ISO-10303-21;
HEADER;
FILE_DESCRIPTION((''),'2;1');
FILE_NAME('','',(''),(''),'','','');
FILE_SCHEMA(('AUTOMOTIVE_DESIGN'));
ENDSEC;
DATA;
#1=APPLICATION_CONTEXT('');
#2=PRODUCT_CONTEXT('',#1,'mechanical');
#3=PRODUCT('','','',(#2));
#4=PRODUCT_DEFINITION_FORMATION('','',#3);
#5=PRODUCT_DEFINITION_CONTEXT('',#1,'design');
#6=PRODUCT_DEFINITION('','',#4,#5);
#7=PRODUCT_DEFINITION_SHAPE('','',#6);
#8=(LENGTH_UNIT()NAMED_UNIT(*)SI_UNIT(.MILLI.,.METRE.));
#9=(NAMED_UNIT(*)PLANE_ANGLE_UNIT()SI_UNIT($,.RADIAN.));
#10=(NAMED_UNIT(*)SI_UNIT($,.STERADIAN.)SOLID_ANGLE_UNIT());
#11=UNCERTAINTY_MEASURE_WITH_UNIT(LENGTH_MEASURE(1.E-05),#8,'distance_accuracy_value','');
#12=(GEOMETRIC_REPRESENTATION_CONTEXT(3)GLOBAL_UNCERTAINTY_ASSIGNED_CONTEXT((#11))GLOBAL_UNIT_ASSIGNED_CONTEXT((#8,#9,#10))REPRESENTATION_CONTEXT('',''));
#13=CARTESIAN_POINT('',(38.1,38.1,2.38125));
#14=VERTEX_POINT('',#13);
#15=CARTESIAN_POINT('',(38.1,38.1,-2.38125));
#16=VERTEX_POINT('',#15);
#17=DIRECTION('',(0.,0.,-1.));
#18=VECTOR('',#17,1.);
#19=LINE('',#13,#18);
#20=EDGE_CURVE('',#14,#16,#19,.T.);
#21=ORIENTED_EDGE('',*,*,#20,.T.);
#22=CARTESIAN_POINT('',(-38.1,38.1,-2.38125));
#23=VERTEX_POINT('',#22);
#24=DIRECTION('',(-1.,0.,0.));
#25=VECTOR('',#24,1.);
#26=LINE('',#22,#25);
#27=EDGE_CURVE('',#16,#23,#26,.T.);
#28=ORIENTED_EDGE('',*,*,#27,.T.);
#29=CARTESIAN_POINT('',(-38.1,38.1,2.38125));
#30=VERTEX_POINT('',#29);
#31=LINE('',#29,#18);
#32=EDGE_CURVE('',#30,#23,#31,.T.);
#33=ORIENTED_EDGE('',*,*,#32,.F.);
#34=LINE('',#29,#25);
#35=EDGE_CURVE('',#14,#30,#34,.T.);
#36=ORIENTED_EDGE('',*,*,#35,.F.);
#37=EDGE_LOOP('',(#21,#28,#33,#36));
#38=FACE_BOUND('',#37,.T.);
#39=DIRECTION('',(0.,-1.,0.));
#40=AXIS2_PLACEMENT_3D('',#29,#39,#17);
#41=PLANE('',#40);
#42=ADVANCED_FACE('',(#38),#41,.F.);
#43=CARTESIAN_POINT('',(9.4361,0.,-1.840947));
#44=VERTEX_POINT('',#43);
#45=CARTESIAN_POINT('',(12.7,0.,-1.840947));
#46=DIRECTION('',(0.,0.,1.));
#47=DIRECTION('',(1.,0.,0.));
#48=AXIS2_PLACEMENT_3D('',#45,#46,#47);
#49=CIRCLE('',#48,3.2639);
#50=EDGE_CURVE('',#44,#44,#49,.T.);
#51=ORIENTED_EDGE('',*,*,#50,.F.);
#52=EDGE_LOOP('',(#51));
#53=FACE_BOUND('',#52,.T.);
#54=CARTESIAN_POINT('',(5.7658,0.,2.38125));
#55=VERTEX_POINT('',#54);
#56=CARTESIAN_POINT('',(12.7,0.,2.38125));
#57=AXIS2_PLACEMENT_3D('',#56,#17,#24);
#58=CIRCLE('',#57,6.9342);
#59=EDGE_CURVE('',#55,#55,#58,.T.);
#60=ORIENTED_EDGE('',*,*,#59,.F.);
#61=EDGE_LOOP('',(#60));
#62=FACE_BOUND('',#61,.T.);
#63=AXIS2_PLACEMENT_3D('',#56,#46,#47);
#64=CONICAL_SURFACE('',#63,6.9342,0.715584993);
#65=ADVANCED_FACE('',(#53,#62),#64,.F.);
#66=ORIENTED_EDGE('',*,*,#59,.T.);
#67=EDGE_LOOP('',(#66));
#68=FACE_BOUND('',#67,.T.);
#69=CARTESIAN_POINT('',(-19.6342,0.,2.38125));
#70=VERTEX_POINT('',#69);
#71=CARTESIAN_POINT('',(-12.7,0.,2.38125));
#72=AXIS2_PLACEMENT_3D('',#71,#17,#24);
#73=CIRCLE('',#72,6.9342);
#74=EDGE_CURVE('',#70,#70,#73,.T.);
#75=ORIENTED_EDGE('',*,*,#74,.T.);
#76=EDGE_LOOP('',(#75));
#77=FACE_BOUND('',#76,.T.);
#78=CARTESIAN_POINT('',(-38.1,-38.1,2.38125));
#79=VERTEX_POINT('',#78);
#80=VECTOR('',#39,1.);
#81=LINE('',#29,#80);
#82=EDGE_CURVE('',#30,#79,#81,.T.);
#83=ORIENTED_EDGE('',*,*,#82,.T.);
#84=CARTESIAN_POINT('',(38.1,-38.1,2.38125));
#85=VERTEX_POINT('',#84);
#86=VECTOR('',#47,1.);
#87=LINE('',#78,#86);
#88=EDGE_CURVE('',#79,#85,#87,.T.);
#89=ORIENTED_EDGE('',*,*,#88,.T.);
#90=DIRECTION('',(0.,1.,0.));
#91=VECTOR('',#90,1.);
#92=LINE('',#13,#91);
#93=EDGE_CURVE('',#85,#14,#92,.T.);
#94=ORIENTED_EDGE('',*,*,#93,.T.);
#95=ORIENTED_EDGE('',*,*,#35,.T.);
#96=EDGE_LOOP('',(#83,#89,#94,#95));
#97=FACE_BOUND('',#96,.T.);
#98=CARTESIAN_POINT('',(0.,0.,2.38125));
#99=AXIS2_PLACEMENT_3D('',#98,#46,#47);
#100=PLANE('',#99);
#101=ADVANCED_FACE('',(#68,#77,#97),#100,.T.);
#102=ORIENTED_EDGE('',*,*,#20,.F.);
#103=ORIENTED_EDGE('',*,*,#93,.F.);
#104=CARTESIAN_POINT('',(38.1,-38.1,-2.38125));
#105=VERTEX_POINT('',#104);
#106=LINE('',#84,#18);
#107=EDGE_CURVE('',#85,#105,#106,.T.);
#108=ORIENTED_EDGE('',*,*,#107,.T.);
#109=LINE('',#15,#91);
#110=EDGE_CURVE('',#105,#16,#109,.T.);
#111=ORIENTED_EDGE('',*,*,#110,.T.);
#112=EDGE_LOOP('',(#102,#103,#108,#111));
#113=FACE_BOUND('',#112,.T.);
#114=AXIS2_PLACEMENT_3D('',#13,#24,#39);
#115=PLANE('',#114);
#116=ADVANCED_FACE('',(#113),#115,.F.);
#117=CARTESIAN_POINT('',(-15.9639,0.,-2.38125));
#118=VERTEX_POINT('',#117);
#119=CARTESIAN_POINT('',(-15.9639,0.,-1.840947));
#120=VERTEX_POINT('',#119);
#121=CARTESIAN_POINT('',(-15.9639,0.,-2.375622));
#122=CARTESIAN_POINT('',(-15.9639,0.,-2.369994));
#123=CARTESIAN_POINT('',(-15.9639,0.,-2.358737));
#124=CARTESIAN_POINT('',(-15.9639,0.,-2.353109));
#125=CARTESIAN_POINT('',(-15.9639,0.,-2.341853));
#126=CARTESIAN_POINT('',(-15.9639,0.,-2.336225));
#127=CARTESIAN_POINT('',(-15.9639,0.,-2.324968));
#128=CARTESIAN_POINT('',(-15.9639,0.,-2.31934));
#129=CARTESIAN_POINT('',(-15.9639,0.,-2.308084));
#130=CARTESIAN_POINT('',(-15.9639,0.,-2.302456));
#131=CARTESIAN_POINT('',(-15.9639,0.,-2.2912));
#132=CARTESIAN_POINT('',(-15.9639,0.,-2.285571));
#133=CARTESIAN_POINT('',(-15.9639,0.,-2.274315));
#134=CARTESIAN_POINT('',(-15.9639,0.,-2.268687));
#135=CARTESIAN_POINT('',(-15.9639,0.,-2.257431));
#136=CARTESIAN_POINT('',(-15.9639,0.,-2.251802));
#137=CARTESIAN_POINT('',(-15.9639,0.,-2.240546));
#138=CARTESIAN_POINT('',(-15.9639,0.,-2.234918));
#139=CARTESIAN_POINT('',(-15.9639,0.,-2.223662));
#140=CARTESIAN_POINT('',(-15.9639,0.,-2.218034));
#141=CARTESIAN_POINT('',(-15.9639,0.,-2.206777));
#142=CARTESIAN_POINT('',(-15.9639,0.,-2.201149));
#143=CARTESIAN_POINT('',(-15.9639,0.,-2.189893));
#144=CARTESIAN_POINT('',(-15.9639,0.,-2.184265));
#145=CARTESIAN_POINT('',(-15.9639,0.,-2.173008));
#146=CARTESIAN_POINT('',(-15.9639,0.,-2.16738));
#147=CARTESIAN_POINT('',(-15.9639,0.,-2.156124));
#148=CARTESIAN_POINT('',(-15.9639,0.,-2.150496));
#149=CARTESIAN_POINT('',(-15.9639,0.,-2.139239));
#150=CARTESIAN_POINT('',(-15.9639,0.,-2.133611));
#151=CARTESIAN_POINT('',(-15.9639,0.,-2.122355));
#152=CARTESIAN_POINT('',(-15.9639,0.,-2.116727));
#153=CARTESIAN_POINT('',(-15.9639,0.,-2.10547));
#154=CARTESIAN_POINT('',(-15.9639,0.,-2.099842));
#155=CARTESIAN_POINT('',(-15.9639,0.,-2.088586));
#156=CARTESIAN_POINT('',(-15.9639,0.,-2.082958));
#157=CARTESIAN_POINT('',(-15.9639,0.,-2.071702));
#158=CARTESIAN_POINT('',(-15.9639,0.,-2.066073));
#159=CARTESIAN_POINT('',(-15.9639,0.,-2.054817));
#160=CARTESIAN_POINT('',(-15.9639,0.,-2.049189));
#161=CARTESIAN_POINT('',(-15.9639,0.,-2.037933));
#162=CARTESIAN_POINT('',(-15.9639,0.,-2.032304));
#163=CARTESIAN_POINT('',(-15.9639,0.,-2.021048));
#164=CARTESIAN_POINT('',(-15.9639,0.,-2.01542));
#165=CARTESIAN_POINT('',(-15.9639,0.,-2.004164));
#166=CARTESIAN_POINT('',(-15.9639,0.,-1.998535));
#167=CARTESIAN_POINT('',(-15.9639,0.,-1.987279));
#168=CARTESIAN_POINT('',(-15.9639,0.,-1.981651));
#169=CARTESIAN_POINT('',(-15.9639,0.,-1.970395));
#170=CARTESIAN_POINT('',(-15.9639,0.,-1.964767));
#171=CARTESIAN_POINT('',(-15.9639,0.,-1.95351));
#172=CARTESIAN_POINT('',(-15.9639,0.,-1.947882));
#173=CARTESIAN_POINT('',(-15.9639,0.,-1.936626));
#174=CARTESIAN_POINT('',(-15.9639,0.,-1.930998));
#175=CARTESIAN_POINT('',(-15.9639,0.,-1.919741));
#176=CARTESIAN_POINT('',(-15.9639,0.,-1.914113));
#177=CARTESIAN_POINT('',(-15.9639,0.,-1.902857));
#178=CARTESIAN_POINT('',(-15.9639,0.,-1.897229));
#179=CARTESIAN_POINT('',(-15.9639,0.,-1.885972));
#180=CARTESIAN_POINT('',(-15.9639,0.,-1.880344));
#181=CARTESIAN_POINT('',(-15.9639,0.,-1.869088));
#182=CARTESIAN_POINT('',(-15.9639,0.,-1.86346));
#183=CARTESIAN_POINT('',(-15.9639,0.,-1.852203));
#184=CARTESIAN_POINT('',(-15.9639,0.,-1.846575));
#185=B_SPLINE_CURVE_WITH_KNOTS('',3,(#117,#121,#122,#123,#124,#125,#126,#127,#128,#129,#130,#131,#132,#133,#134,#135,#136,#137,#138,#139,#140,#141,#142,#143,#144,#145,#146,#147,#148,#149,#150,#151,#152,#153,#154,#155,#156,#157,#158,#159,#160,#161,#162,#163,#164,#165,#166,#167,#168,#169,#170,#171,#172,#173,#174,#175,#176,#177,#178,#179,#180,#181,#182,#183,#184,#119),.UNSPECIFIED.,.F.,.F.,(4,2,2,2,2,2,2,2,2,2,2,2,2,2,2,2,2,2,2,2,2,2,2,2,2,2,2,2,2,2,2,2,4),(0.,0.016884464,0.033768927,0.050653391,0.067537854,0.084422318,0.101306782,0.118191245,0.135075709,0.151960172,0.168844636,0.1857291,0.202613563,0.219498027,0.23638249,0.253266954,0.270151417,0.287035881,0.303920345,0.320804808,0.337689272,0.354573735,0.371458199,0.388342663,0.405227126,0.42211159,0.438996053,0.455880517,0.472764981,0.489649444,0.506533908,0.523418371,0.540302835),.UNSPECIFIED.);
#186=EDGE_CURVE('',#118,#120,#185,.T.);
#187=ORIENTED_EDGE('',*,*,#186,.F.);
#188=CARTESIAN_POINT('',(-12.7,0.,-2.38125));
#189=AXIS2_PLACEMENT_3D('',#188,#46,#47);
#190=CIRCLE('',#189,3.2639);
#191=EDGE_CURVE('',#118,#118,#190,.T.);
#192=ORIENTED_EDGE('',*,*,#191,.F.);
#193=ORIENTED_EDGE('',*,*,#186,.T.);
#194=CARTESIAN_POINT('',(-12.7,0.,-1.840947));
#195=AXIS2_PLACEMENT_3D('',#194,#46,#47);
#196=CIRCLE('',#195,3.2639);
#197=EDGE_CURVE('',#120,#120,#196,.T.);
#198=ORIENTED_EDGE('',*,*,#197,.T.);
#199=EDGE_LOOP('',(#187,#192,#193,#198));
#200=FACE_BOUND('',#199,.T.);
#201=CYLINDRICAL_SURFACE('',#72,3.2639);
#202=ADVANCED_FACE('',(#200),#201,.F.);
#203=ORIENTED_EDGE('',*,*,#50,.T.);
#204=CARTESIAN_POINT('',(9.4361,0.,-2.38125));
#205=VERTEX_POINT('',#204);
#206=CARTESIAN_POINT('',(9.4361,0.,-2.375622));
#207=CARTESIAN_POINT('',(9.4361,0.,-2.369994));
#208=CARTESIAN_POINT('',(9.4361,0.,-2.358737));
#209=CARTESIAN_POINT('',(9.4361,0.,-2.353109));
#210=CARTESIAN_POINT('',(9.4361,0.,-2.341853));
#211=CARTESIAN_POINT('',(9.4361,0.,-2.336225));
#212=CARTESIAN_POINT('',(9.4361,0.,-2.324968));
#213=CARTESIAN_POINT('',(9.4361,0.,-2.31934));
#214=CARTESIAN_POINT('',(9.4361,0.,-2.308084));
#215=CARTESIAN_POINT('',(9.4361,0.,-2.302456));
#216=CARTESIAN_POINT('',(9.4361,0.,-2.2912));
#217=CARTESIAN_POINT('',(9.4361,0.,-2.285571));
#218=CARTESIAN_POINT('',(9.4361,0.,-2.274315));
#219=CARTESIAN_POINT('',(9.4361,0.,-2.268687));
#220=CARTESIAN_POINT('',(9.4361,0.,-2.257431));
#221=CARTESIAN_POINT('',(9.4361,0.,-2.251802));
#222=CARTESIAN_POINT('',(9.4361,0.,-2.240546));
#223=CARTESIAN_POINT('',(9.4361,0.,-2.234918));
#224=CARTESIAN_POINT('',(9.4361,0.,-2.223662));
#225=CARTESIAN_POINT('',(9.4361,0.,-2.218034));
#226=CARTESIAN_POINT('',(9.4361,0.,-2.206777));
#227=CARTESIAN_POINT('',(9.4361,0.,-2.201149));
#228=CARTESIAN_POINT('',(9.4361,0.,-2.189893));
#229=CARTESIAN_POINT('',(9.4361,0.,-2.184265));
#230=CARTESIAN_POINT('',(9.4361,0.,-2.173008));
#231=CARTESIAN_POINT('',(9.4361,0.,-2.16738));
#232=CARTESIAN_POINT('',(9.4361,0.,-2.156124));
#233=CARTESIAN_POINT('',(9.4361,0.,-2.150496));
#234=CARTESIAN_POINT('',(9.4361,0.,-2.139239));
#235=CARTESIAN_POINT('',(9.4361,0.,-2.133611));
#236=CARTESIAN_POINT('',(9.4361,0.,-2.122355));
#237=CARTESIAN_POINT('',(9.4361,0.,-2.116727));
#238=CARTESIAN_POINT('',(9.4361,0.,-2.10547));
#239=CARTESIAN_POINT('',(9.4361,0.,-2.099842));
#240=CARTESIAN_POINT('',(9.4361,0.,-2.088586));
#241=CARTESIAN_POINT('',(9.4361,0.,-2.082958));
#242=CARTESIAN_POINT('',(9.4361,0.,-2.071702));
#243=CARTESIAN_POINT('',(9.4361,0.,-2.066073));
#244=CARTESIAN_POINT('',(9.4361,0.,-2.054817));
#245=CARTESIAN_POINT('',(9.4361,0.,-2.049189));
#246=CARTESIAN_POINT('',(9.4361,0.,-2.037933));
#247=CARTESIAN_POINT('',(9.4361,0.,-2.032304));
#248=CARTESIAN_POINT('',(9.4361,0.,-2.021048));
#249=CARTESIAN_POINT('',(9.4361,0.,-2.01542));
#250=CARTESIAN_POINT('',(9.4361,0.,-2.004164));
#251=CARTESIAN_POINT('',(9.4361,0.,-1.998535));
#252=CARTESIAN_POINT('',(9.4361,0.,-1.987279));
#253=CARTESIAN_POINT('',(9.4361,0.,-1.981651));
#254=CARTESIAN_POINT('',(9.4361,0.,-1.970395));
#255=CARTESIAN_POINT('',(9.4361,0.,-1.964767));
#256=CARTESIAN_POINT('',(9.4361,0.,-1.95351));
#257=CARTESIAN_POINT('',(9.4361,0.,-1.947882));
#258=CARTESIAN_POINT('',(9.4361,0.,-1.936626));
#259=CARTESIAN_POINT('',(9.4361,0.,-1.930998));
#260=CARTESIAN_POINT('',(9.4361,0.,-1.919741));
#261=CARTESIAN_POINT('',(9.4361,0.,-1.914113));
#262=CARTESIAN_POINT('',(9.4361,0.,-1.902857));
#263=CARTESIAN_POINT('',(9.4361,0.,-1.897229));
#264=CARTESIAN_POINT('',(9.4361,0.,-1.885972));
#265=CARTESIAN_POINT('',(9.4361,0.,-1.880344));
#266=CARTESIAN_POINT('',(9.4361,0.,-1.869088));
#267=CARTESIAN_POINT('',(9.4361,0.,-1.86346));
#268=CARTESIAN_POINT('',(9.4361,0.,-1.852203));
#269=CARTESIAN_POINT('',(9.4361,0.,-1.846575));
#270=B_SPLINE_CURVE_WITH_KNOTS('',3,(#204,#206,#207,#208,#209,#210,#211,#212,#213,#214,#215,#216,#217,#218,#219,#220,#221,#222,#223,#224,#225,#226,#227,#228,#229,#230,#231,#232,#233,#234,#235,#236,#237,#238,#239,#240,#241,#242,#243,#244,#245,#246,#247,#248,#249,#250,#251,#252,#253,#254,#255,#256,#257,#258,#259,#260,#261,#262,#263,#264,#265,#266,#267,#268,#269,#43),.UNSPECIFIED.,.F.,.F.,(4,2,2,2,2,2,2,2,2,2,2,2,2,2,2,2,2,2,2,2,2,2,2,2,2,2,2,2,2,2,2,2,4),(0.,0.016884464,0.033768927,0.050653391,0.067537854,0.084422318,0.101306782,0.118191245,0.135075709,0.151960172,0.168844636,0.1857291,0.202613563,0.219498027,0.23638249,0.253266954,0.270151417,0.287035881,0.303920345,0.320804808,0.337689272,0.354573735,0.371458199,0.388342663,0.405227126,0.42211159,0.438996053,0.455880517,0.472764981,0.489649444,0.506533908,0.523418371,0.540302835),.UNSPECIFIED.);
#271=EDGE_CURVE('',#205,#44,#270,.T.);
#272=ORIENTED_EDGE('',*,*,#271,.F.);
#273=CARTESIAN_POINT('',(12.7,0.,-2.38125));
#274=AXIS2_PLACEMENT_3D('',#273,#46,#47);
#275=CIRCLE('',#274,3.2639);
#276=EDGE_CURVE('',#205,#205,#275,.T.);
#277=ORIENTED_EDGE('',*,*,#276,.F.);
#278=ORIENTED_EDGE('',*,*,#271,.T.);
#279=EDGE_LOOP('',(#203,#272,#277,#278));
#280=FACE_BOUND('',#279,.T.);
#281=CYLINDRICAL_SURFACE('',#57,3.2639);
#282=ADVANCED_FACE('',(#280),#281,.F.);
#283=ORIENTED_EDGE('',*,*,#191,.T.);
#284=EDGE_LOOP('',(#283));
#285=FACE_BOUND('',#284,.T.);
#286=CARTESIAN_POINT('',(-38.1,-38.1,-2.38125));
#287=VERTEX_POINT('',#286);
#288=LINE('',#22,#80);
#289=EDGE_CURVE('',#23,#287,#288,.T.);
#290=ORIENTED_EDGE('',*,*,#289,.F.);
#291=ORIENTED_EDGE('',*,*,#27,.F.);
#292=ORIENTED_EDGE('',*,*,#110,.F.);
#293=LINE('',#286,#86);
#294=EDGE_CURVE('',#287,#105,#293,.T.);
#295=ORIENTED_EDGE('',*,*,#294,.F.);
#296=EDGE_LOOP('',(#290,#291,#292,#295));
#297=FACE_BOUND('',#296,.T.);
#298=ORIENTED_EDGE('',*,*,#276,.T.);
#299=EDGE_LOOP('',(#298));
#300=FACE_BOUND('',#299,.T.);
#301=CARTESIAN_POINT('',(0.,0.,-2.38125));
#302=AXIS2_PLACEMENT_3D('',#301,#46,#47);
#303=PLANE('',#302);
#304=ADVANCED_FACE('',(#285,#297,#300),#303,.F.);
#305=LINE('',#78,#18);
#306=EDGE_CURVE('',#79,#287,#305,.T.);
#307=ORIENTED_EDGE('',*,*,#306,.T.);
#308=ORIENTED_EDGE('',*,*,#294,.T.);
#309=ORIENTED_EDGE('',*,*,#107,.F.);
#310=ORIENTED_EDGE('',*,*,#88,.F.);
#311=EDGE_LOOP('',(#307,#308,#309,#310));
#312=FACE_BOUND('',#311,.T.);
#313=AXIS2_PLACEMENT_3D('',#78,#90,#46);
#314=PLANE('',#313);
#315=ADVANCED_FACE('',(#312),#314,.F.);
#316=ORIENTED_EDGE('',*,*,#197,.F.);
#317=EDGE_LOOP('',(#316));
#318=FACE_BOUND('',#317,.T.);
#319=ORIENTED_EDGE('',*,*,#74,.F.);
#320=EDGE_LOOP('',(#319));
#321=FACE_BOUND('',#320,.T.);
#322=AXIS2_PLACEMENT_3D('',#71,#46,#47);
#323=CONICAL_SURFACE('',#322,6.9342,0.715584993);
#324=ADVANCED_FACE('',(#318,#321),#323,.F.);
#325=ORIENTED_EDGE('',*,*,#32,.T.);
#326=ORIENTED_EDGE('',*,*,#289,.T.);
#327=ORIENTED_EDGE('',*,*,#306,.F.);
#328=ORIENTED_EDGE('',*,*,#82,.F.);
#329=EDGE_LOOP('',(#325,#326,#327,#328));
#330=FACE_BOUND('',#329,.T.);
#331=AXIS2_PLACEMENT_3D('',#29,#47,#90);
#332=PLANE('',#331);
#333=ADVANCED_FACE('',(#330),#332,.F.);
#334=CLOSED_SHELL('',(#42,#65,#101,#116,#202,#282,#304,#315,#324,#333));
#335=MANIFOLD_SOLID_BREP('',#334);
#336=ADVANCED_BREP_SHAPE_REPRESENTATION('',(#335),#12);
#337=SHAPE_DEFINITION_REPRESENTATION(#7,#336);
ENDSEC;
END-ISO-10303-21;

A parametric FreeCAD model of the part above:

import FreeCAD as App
import Part
import Sketcher
Q = App.Units.Quantity


def add_polygon(sketch, points):
    """Adds a closed chain of lines whose ends are joined by coincident constraints."""
    first, n = sketch.GeometryCount, len(points)
    for a, b in zip(points, points[1:] + points[:1]):
        sketch.addGeometry(Part.LineSegment(App.Vector(*a, 0), App.Vector(*b, 0)), False)
    for i in range(n):
        sketch.addConstraint(Sketcher.Constraint("Coincident", first + i, 2, first + (i + 1) % n, 1))

doc = App.newDocument("Part")
params = doc.addObject("Spreadsheet::Sheet", "Params")
for row, (alias, value) in enumerate([
    ("sketch1_width", "3 in"),
    ("sketch1_diameter", "0.257 in"),
    ("pad1_length", "0.1875 in"),
    ("sketch2_width", "0.273 in"),
    ("groove_angle", "360 deg"),
    ("linearpattern_pitch", "1 in"),
], start=1):
    params.set(f"A{row}", alias)
    params.set(f"B{row}", "=" + value)
    params.setAlias(f"B{row}", alias)

body = doc.addObject("PartDesign::Body", "Body")

# Sketch on XY plane
sketch1 = body.newObject("Sketcher::SketchObject", "Sketch")
sketch1.AttachmentSupport = (doc.getObject("XY_Plane"), [""])
sketch1.MapMode = "FlatFace"
add_polygon(sketch1, [(-38.1, 38.1), (-38.1, -38.1), (38.1, -38.1), (38.1, 38.1)])  # lines 0-3
sketch1.addGeometry(Part.Circle(App.Vector(-12.7, 0, 0), App.Vector(0, 0, 1), 3.3), False)  # 4
sketch1.addGeometry(Part.Circle(App.Vector(12.7, 0, 0), App.Vector(0, 0, 1), 3.3), False)  # 5
sketch1.addConstraint([
    Sketcher.Constraint("Vertical", 0),
    Sketcher.Constraint("Horizontal", 1),
    Sketcher.Constraint("Vertical", 2),
    Sketcher.Constraint("Horizontal", 3),
    Sketcher.Constraint("Equal", 4, 5),
    Sketcher.Constraint("Symmetric", 4, 3, 5, 3, -1, 1),
    Sketcher.Constraint("Symmetric", 0, 2, 2, 2, -1, 1),
    Sketcher.Constraint("PointOnObject", 4, 3, -1),
    Sketcher.Constraint("Equal", 3, 0),
    Sketcher.Constraint("DistanceX", 1, 1, 1, 2, Q("3 in")),
    Sketcher.Constraint("Diameter", 4, Q("0.257 in")),
    Sketcher.Constraint("DistanceX", 4, 3, 5, 3, Q("1 in")),
])
sketch1.setExpression("Constraints[13]", "Params.sketch1_width")
sketch1.setExpression("Constraints[14]", "Params.sketch1_diameter")
pad1 = body.newObject("PartDesign::Pad", "Pad")
pad1.Profile = sketch1
pad1.setExpression("Length", "Params.pad1_length")
pad1.Midplane = True

# Sketch on XZ plane
sketch2 = body.newObject("Sketcher::SketchObject", "Sketch001")
sketch2.AttachmentSupport = (doc.getObject("XZ_Plane"), [""])
sketch2.MapMode = "FlatFace"
add_polygon(sketch2, [(-6, 2), (-13, -6), (-13, 2)])  # lines 0-2
sketch2.addGeometry(Part.LineSegment(App.Vector(-13, -6, 0), App.Vector(-13, 2, 0)), True)  # axis
sketch2.addConstraint([
    Sketcher.Constraint("Vertical", 1),
    Sketcher.Constraint("Horizontal", 2),
    Sketcher.Constraint("Vertical", 3),
    Sketcher.Constraint("Coincident", 3, 1, 0, 2),
    Sketcher.Constraint("Horizontal", 2, 2, 3, 2),
    Sketcher.Constraint("Angle", 0, Q("-131 deg")),
    Sketcher.Constraint("DistanceX", 0, 2, -1, 1, Q("0.5 in")),
    Sketcher.Constraint("DistanceX", 2, 1, 2, 2, Q("0.273 in")),
    Sketcher.Constraint("DistanceY", -1, 1, 1, 2, Q("0.09375 in")),
])
sketch2.setExpression("Constraints[10]", "Params.sketch2_width")
groove = body.newObject("PartDesign::Groove", "Groove")
groove.Profile = sketch2
groove.ReferenceAxis = (sketch2, ["Axis0"])
groove.setExpression("Angle", "Params.groove_angle")
doc.recompute()

linearpattern = body.newObject("PartDesign::LinearPattern", "LinearPattern")
linearpattern.Originals = [groove]
linearpattern.Direction = (doc.getObject("X_Axis"), [""])
linearpattern.Mode = "offset"
linearpattern.setExpression("Offset", "Params.linearpattern_pitch")
linearpattern.Occurrences = 2
body.Tip = linearpattern

doc.recompute()
